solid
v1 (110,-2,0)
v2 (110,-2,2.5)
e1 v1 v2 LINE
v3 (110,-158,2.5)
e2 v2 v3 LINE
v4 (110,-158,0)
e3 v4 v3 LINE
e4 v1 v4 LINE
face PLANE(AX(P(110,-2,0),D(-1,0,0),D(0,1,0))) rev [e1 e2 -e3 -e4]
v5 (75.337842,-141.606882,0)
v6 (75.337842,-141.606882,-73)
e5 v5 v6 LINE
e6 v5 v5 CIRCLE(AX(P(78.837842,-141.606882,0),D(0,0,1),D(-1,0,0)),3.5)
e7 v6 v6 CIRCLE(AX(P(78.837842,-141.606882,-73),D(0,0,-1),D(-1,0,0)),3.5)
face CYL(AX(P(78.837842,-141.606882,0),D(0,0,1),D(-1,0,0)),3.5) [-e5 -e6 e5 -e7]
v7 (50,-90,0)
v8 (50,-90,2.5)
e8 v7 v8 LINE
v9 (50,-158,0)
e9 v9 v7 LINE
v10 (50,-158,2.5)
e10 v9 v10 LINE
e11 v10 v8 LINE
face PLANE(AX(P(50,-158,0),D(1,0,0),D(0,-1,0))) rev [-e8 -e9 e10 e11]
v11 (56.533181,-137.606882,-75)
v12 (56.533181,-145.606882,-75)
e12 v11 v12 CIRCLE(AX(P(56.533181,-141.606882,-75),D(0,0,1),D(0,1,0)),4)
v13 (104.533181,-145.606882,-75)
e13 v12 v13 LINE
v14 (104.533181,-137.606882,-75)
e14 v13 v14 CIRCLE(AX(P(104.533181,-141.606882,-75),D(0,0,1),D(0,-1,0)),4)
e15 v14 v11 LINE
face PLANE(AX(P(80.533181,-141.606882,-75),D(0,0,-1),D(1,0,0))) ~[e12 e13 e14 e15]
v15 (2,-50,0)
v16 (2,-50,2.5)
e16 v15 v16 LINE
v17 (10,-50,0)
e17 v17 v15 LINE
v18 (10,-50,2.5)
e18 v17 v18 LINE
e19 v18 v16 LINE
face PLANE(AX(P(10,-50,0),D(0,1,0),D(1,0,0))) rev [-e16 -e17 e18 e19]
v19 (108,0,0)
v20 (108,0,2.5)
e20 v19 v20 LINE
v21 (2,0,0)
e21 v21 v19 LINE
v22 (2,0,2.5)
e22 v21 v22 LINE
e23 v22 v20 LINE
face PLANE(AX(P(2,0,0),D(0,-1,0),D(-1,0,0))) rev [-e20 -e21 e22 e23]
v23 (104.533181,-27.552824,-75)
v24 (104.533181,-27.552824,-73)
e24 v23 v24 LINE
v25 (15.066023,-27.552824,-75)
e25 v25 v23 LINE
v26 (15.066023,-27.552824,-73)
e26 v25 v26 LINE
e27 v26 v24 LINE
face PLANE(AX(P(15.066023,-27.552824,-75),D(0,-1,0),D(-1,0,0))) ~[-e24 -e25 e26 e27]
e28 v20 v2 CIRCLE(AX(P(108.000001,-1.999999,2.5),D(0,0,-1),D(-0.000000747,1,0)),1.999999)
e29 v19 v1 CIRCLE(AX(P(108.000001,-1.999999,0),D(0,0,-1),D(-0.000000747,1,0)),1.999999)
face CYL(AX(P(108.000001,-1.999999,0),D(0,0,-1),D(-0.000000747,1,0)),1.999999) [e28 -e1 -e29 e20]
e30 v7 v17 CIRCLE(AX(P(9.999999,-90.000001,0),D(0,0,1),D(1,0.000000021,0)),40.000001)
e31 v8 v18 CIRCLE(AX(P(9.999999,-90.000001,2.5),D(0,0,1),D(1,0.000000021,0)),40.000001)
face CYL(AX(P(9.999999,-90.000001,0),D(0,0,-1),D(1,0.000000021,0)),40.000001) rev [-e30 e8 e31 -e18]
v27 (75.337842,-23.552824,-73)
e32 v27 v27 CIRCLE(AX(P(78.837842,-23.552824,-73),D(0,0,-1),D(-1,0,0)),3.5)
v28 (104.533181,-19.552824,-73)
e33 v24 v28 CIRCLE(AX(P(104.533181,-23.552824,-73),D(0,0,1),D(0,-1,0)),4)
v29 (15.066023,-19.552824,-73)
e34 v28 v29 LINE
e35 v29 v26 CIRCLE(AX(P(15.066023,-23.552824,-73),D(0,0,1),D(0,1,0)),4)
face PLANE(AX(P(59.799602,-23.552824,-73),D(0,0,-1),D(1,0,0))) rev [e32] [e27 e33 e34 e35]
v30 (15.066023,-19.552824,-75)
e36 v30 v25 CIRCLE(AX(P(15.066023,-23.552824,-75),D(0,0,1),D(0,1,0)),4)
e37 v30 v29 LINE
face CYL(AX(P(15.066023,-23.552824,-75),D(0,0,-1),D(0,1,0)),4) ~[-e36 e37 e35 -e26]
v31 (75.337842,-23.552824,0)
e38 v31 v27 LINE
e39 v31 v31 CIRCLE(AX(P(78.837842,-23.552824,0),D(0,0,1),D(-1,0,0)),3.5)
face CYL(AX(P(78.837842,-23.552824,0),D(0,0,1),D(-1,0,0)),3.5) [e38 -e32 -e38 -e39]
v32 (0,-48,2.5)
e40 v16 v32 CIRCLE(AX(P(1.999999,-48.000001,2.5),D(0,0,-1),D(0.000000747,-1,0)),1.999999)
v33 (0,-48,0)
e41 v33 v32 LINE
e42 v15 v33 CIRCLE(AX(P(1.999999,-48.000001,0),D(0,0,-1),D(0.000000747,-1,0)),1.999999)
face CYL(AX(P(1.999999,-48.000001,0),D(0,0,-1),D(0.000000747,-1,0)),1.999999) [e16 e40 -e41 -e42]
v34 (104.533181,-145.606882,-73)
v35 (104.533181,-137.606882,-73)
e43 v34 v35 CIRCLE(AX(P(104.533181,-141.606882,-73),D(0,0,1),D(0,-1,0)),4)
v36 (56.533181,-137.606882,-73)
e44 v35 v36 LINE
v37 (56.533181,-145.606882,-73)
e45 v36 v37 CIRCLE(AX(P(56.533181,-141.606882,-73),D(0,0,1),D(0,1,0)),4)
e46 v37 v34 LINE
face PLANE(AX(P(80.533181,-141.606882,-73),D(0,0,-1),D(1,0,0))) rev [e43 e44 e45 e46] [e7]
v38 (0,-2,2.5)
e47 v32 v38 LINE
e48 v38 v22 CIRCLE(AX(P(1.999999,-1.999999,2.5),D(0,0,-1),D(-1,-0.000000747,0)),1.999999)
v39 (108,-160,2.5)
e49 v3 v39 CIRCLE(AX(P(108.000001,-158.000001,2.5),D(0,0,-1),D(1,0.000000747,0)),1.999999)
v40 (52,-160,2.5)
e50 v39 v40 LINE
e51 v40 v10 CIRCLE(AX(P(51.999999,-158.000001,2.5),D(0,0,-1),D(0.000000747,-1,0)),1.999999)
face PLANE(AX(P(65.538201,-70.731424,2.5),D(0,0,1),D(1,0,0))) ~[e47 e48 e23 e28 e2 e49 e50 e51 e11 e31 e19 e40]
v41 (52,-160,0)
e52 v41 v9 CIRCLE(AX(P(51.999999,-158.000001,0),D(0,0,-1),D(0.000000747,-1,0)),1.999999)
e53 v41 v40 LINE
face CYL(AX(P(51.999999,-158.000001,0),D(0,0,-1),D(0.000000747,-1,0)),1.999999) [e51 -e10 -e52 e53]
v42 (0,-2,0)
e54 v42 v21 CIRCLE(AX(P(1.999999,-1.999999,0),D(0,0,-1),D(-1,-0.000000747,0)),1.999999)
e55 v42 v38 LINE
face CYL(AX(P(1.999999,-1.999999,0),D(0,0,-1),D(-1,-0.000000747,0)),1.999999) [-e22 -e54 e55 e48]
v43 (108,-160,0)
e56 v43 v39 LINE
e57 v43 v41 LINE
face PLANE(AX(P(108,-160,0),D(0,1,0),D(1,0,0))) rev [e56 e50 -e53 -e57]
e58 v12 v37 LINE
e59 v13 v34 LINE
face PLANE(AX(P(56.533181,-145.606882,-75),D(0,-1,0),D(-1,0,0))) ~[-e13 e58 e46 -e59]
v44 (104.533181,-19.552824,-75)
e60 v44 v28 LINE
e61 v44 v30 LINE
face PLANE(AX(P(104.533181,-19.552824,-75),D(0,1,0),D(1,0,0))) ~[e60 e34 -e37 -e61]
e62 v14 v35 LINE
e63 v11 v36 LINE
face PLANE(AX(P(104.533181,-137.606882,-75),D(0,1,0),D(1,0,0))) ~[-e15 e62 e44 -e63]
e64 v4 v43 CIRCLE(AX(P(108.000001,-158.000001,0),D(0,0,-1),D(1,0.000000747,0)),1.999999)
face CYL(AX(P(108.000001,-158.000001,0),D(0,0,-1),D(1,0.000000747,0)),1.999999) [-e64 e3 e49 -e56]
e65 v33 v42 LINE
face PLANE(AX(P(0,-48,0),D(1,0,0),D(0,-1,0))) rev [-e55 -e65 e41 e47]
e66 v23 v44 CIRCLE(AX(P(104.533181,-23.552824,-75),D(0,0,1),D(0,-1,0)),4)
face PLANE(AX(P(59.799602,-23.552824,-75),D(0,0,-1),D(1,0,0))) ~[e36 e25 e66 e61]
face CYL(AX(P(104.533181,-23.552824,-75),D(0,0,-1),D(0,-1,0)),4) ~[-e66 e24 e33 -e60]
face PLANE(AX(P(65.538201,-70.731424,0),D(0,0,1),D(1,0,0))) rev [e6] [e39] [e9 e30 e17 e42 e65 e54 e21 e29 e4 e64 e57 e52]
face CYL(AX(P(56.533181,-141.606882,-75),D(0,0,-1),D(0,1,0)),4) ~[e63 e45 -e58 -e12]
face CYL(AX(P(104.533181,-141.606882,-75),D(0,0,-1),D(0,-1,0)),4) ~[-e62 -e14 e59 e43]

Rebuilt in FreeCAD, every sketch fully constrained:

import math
import FreeCAD as App
import Part
import Sketcher

V = App.Vector

doc = App.newDocument("Part")
params = doc.addObject("Spreadsheet::Sheet", "Params")
for row, (alias, value) in enumerate([
    ("sketch1_radius", "1.999999 mm"),
    ("sketch1_radius2", "40.000001 mm"),
    ("sketch1_width", "106 mm"),
    ("sketch1_width2", "56 mm"),
    ("sketch1_height", "156 mm"),
    ("pad1_length", "2.5 mm"),
    ("sketch2_diameter", "7 mm"),
    ("pad2_length", "75 mm"),
    ("sketch3_diameter", "7 mm"),
    ("sketch3_radius", "4 mm"),
    ("sketch3_width", "48 mm"),
    ("pad3_length", "2 mm"),
], start=1):
    params.set(f"A{row}", alias)
    params.set(f"B{row}", "=" + value)
    params.setAlias(f"B{row}", alias)

body = doc.addObject("PartDesign::Body", "Body")

# Sketch on XY plane
sketch1 = body.newObject("Sketcher::SketchObject", "Sketch")
sketch1.AttachmentSupport = (doc.getObject("XY_Plane"), [""])
sketch1.MapMode = "FlatFace"
sketch1.addGeometry(Part.ArcOfCircle(Part.Circle(V(-1.999999, -1.999999, 0), V(0, 0, 1), 1.999999), math.radians(-0.000043), math.radians(90.000043)), False)
sketch1.addGeometry(Part.LineSegment(V(-2, 0, 0), V(-108, 0, 0)), False)
sketch1.addGeometry(Part.ArcOfCircle(Part.Circle(V(-108.000001, -1.999999, 0), V(0, 0, 1), 1.999999), math.radians(89.999957), math.radians(180.000043)), False)
sketch1.addGeometry(Part.LineSegment(V(-110, -2, 0), V(-110, -158, 0)), False)
sketch1.addGeometry(Part.ArcOfCircle(Part.Circle(V(-108.000001, -158.000001, 0), V(0, 0, 1), 1.999999), math.radians(179.999957), math.radians(270.000043)), False)
sketch1.addGeometry(Part.LineSegment(V(-108, -160, 0), V(-52, -160, 0)), False)
sketch1.addGeometry(Part.ArcOfCircle(Part.Circle(V(-51.999999, -158.000001, 0), V(0, 0, 1), 1.999999), math.radians(-90.000043), math.radians(0.000043)), False)
sketch1.addGeometry(Part.LineSegment(V(-50, -158, 0), V(-50, -90, 0)), False)
sketch1.addGeometry(Part.ArcOfCircle(Part.Circle(V(-9.999999, -90.000001, 0), V(0, 0, 1), 40.000001), math.radians(90.000001), math.radians(179.999999)), False)
sketch1.addGeometry(Part.LineSegment(V(-10, -50, 0), V(-2, -50, 0)), False)
sketch1.addGeometry(Part.ArcOfCircle(Part.Circle(V(-1.999999, -48.000001, 0), V(0, 0, 1), 1.999999), math.radians(-90.000043), math.radians(0.000043)), False)
sketch1.addGeometry(Part.LineSegment(V(0, -48, 0), V(0, -2, 0)), False)
sketch1.addConstraint(Sketcher.Constraint("Tangent", 0, 2, 1, 1))
sketch1.addConstraint(Sketcher.Constraint("Tangent", 1, 2, 2, 1))
sketch1.addConstraint(Sketcher.Constraint("Tangent", 2, 2, 3, 1))
sketch1.addConstraint(Sketcher.Constraint("Tangent", 3, 2, 4, 1))
sketch1.addConstraint(Sketcher.Constraint("Tangent", 4, 2, 5, 1))
sketch1.addConstraint(Sketcher.Constraint("Tangent", 5, 2, 6, 1))
sketch1.addConstraint(Sketcher.Constraint("Tangent", 6, 2, 7, 1))
sketch1.addConstraint(Sketcher.Constraint("Tangent", 7, 2, 8, 2))
sketch1.addConstraint(Sketcher.Constraint("Tangent", 8, 1, 9, 1))
sketch1.addConstraint(Sketcher.Constraint("Tangent", 9, 2, 10, 1))
sketch1.addConstraint(Sketcher.Constraint("Tangent", 10, 2, 11, 1))
sketch1.addConstraint(Sketcher.Constraint("Tangent", 11, 2, 0, 1))
sketch1.addConstraint(Sketcher.Constraint("Horizontal", 1))
sketch1.addConstraint(Sketcher.Constraint("Vertical", 3))
sketch1.addConstraint(Sketcher.Constraint("Horizontal", 5))
sketch1.addConstraint(Sketcher.Constraint("Vertical", 7))
sketch1.addConstraint(Sketcher.Constraint("Horizontal", 9))
sketch1.addConstraint(Sketcher.Constraint("Vertical", 11))
sketch1.addConstraint(Sketcher.Constraint("Equal", 0, 2))
sketch1.addConstraint(Sketcher.Constraint("Equal", 2, 4))
sketch1.addConstraint(Sketcher.Constraint("Equal", 4, 6))
sketch1.addConstraint(Sketcher.Constraint("Equal", 6, 10))
sketch1.addConstraint(Sketcher.Constraint("PointOnObject", 0, 2, -1))
sketch1.addConstraint(Sketcher.Constraint("PointOnObject", 10, 2, -2))
sketch1.addConstraint(Sketcher.Constraint("Radius", 0, 1.999999))
sketch1.addConstraint(Sketcher.Constraint("Radius", 8, 40.000001))
sketch1.addConstraint(Sketcher.Constraint("DistanceX", 1, 2, 1, 1, 106.0))
sketch1.addConstraint(Sketcher.Constraint("DistanceX", 5, 1, 5, 2, 56.0))
sketch1.addConstraint(Sketcher.Constraint("DistanceY", 3, 2, 3, 1, 156.0))
sketch1.addConstraint(Sketcher.Constraint("DistanceY", 7, 1, 7, 2, 68.0))
sketch1.setExpression("Constraints[24]", "Params.sketch1_radius")
sketch1.setExpression("Constraints[25]", "Params.sketch1_radius2")
sketch1.setExpression("Constraints[26]", "Params.sketch1_width")
sketch1.setExpression("Constraints[27]", "Params.sketch1_width2")
sketch1.setExpression("Constraints[28]", "Params.sketch1_height")
pad1 = body.newObject("PartDesign::Pad", "Pad")
pad1.Profile = sketch1
pad1.setExpression("Length", "Params.pad1_length")

# Sketch on XY plane
sketch2 = body.newObject("Sketcher::SketchObject", "Sketch001")
sketch2.AttachmentSupport = (doc.getObject("XY_Plane"), [""])
sketch2.MapMode = "FlatFace"
sketch2.addGeometry(Part.Circle(V(-78.837842, -141.606882, 0), V(0, 0, 1), 3.5), False)
sketch2.addGeometry(Part.Circle(V(-78.837842, -23.552824, 0), V(0, 0, 1), 3.5), False)
sketch2.addConstraint(Sketcher.Constraint("Equal", 0, 1))
sketch2.addConstraint(Sketcher.Constraint("Vertical", 0, 3, 1, 3))
sketch2.addConstraint(Sketcher.Constraint("Diameter", 0, 7.0))
sketch2.addConstraint(Sketcher.Constraint("DistanceX", 0, 3, -1, 1, 78.837842))
sketch2.addConstraint(Sketcher.Constraint("DistanceY", 0, 3, 1, 3, 118.054058))
sketch2.addConstraint(Sketcher.Constraint("DistanceY", 0, 3, -1, 1, 141.606882))
sketch2.setExpression("Constraints[2]", "Params.sketch2_diameter")
pad2 = body.newObject("PartDesign::Pad", "Pad001")
pad2.Profile = sketch2
pad2.setExpression("Length", "Params.pad2_length")
pad2.Reversed = True

# Sketch on XY plane
sketch3 = body.newObject("Sketcher::SketchObject", "Sketch002")
sketch3.AttachmentSupport = (doc.getObject("XY_Plane"), [""])
sketch3.MapMode = "FlatFace"
sketch3.AttachmentOffset = App.Placement(V(0, 0, -75), App.Rotation())
sketch3.addGeometry(Part.ArcOfCircle(Part.Circle(V(-56.533181, -141.606882, 0), V(0, 0, 1), 4), math.radians(-90), math.radians(90)), False)
sketch3.addGeometry(Part.LineSegment(V(-56.533181, -145.606882, 0), V(-104.533181, -145.606882, 0)), False)
sketch3.addGeometry(Part.ArcOfCircle(Part.Circle(V(-104.533181, -141.606882, 0), V(0, 0, 1), 4), math.radians(90), math.radians(270)), False)
sketch3.addGeometry(Part.LineSegment(V(-104.533181, -137.606882, 0), V(-56.533181, -137.606882, 0)), False)
sketch3.addGeometry(Part.Circle(V(-78.837842, -141.606882, 0), V(0, 0, 1), 3.5), False)
sketch3.addGeometry(Part.ArcOfCircle(Part.Circle(V(-104.533181, -23.552824, 0), V(0, 0, 1), 4), math.radians(90), math.radians(270)), False)
sketch3.addGeometry(Part.LineSegment(V(-104.533181, -19.552824, 0), V(-15.066023, -19.552824, 0)), False)
sketch3.addGeometry(Part.ArcOfCircle(Part.Circle(V(-15.066023, -23.552824, 0), V(0, 0, 1), 4), math.radians(-90), math.radians(90)), False)
sketch3.addGeometry(Part.LineSegment(V(-15.066023, -27.552824, 0), V(-104.533181, -27.552824, 0)), False)
sketch3.addGeometry(Part.ArcOfCircle(Part.Circle(V(-78.837842, -23.552824, 0), V(0, 0, 1), 3.5), math.radians(180), math.radians(360)), False)
sketch3.addGeometry(Part.LineSegment(V(-75.337842, -23.552824, 0), V(-82.337842, -23.552824, 0)), False)
sketch3.addConstraint(Sketcher.Constraint("Tangent", 0, 1, 1, 1))
sketch3.addConstraint(Sketcher.Constraint("Tangent", 1, 2, 2, 2))
sketch3.addConstraint(Sketcher.Constraint("Tangent", 2, 1, 3, 1))
sketch3.addConstraint(Sketcher.Constraint("Tangent", 3, 2, 0, 2))
sketch3.addConstraint(Sketcher.Constraint("Tangent", 5, 1, 6, 1))
sketch3.addConstraint(Sketcher.Constraint("Tangent", 6, 2, 7, 2))
sketch3.addConstraint(Sketcher.Constraint("Tangent", 7, 1, 8, 1))
sketch3.addConstraint(Sketcher.Constraint("Tangent", 8, 2, 5, 2))
sketch3.addConstraint(Sketcher.Constraint("Coincident", 9, 1, 10, 2))
sketch3.addConstraint(Sketcher.Constraint("Coincident", 10, 1, 9, 2))
sketch3.addConstraint(Sketcher.Constraint("Horizontal", 1))
sketch3.addConstraint(Sketcher.Constraint("Horizontal", 3))
sketch3.addConstraint(Sketcher.Constraint("Horizontal", 6))
sketch3.addConstraint(Sketcher.Constraint("Horizontal", 8))
sketch3.addConstraint(Sketcher.Constraint("Horizontal", 10))
sketch3.addConstraint(Sketcher.Constraint("Equal", 2, 5))
sketch3.addConstraint(Sketcher.Constraint("Equal", 4, 9))
sketch3.addConstraint(Sketcher.Constraint("Horizontal", 2, 3, 4, 3))
sketch3.addConstraint(Sketcher.Constraint("Horizontal", 7, 3, 9, 3))
sketch3.addConstraint(Sketcher.Constraint("Horizontal", 7, 3, 9, 1))
sketch3.addConstraint(Sketcher.Constraint("Vertical", 2, 3, 5, 3))
sketch3.addConstraint(Sketcher.Constraint("Vertical", 4, 3, 9, 3))
sketch3.addConstraint(Sketcher.Constraint("Diameter", 4, 7.0))
sketch3.addConstraint(Sketcher.Constraint("Radius", 0, 4.0))
sketch3.addConstraint(Sketcher.Constraint("DistanceX", 1, 2, 1, 1, 48.0))
sketch3.addConstraint(Sketcher.Constraint("DistanceX", 6, 1, 6, 2, 89.467158))
sketch3.addConstraint(Sketcher.Constraint("DistanceX", 0, 3, -1, 1, 56.533181))
sketch3.addConstraint(Sketcher.Constraint("DistanceX", 4, 3, -1, 1, 78.837842))
sketch3.addConstraint(Sketcher.Constraint("DistanceY", 2, 3, 5, 3, 118.054058))
sketch3.addConstraint(Sketcher.Constraint("DistanceY", 0, 3, -1, 1, 141.606882))
sketch3.setExpression("Constraints[22]", "Params.sketch3_diameter")
sketch3.setExpression("Constraints[23]", "Params.sketch3_radius")
sketch3.setExpression("Constraints[24]", "Params.sketch3_width")
pad3 = body.newObject("PartDesign::Pad", "Pad002")
pad3.Profile = sketch3
pad3.setExpression("Length", "Params.pad3_length")
body2 = doc.addObject("PartDesign::Body", "Body001")
doc.recompute()

mirroring = doc.addObject("Part::Mirroring", "Mirroring")
mirroring.Source = body
mirroring.Base = V(0, 0, 0)
mirroring.Normal = V(1, 0, 0)
body2.BaseFeature = mirroring
doc.recompute()
body.Visibility = False
mirroring.Visibility = False

doc.recompute()
